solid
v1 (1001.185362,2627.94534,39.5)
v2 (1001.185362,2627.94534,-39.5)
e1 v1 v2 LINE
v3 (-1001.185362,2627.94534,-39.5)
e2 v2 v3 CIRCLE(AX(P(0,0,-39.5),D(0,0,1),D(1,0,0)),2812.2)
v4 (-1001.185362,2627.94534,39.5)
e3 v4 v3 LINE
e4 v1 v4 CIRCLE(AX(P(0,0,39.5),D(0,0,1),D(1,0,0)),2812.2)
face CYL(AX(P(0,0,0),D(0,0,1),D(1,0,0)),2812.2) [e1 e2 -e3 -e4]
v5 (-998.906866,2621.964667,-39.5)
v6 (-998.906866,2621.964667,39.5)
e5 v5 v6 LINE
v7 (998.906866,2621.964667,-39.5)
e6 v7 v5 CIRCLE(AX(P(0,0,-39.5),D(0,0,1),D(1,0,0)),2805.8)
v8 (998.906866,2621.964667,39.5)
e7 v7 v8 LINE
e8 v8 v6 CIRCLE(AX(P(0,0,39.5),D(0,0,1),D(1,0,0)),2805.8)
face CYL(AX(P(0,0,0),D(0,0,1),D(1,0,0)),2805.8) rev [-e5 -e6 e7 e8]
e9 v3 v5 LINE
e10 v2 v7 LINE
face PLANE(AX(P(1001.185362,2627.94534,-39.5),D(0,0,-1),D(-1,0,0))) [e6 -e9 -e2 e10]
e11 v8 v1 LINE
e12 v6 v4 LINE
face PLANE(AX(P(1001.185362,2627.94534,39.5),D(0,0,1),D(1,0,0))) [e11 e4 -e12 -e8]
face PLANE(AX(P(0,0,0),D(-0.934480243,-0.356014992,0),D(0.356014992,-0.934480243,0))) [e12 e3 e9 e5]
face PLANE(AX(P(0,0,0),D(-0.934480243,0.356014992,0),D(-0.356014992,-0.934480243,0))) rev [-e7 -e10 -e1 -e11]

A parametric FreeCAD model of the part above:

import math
import FreeCAD as App
import Part
import Sketcher

V = App.Vector


def add_polygon(sketch, points):
    """Adds a closed chain of lines whose ends are joined by coincident constraints."""
    first, n = sketch.GeometryCount, len(points)
    for a, b in zip(points, points[1:] + points[:1]):
        sketch.addGeometry(Part.LineSegment(App.Vector(*a, 0), App.Vector(*b, 0)), False)
    for i in range(n):
        sketch.addConstraint(Sketcher.Constraint("Coincident", first + i, 2, first + (i + 1) % n, 1))

doc = App.newDocument("Part")
params = doc.addObject("Spreadsheet::Sheet", "Params")
for row, (alias, value) in enumerate([
    ("sketch1_height", "79 mm"),
    ("sketch1_width", "6.4 mm"),
], start=1):
    params.set(f"A{row}", alias)
    params.set(f"B{row}", "=" + value)
    params.setAlias(f"B{row}", alias)

body = doc.addObject("PartDesign::Body", "Body")

# Sketch on an angled plane
sketch1 = doc.addObject("Sketcher::SketchObject", "Sketch")
body.addObject(sketch1)
sketch1.Placement = App.Placement(V(0, 0, 0), App.Rotation(V(0.356014992, -0.934480243, 0), V(0, 0, 0.999999999), V(-0.934480243, -0.356014992, 0), "ZXY"))
add_polygon(sketch1, [(-2812, 39), (-2812, -39), (-2806, -39), (-2806, 39)])  # lines 0-3
sketch1.addConstraint([
    Sketcher.Constraint("Vertical", 0),
    Sketcher.Constraint("Horizontal", 1),
    Sketcher.Constraint("Vertical", 2),
    Sketcher.Constraint("Horizontal", 3),
    Sketcher.Constraint("DistanceY", 0, 2, 0, 1, 79.0),
    Sketcher.Constraint("DistanceX", 1, 1, 1, 2, 6.4),
    Sketcher.Constraint("DistanceY", 0, 2, -1, 1, 39.5),
    Sketcher.Constraint("DistanceX", 0, 2, -1, 1, 2812.199997),
])
sketch1.setExpression("Constraints[8]", "Params.sketch1_height")
sketch1.setExpression("Constraints[9]", "Params.sketch1_width")

# Sketch on XY plane
sketch2 = doc.addObject("Sketcher::SketchObject", "Sketch001")
body.addObject(sketch2)
sketch2.AttachmentSupport = (doc.XY_Plane, [""])
sketch2.MapMode = "FlatFace"
sketch2.addGeometry(Part.ArcOfCircle(Part.Circle(V(0, 0, 0), V(0, 0, 1), 2809), math.radians(69), math.radians(111)), False)
sketch2.addConstraint([
    Sketcher.Constraint("Coincident", 0, 3, -1, 1),
    Sketcher.Constraint("DistanceX", -1, 1, 0, 1, 1000.0),
    Sketcher.Constraint("DistanceX", 0, 2, -1, 1, 1000.0),
    Sketcher.Constraint("Radius", 0, 2808.870473),
])
doc.recompute()

additivepipe = doc.addObject("PartDesign::AdditivePipe", "AdditivePipe")
body.addObject(additivepipe)
additivepipe.Profile = sketch1
additivepipe.Spine = (sketch2, ["Edge1"])

doc.recompute()
